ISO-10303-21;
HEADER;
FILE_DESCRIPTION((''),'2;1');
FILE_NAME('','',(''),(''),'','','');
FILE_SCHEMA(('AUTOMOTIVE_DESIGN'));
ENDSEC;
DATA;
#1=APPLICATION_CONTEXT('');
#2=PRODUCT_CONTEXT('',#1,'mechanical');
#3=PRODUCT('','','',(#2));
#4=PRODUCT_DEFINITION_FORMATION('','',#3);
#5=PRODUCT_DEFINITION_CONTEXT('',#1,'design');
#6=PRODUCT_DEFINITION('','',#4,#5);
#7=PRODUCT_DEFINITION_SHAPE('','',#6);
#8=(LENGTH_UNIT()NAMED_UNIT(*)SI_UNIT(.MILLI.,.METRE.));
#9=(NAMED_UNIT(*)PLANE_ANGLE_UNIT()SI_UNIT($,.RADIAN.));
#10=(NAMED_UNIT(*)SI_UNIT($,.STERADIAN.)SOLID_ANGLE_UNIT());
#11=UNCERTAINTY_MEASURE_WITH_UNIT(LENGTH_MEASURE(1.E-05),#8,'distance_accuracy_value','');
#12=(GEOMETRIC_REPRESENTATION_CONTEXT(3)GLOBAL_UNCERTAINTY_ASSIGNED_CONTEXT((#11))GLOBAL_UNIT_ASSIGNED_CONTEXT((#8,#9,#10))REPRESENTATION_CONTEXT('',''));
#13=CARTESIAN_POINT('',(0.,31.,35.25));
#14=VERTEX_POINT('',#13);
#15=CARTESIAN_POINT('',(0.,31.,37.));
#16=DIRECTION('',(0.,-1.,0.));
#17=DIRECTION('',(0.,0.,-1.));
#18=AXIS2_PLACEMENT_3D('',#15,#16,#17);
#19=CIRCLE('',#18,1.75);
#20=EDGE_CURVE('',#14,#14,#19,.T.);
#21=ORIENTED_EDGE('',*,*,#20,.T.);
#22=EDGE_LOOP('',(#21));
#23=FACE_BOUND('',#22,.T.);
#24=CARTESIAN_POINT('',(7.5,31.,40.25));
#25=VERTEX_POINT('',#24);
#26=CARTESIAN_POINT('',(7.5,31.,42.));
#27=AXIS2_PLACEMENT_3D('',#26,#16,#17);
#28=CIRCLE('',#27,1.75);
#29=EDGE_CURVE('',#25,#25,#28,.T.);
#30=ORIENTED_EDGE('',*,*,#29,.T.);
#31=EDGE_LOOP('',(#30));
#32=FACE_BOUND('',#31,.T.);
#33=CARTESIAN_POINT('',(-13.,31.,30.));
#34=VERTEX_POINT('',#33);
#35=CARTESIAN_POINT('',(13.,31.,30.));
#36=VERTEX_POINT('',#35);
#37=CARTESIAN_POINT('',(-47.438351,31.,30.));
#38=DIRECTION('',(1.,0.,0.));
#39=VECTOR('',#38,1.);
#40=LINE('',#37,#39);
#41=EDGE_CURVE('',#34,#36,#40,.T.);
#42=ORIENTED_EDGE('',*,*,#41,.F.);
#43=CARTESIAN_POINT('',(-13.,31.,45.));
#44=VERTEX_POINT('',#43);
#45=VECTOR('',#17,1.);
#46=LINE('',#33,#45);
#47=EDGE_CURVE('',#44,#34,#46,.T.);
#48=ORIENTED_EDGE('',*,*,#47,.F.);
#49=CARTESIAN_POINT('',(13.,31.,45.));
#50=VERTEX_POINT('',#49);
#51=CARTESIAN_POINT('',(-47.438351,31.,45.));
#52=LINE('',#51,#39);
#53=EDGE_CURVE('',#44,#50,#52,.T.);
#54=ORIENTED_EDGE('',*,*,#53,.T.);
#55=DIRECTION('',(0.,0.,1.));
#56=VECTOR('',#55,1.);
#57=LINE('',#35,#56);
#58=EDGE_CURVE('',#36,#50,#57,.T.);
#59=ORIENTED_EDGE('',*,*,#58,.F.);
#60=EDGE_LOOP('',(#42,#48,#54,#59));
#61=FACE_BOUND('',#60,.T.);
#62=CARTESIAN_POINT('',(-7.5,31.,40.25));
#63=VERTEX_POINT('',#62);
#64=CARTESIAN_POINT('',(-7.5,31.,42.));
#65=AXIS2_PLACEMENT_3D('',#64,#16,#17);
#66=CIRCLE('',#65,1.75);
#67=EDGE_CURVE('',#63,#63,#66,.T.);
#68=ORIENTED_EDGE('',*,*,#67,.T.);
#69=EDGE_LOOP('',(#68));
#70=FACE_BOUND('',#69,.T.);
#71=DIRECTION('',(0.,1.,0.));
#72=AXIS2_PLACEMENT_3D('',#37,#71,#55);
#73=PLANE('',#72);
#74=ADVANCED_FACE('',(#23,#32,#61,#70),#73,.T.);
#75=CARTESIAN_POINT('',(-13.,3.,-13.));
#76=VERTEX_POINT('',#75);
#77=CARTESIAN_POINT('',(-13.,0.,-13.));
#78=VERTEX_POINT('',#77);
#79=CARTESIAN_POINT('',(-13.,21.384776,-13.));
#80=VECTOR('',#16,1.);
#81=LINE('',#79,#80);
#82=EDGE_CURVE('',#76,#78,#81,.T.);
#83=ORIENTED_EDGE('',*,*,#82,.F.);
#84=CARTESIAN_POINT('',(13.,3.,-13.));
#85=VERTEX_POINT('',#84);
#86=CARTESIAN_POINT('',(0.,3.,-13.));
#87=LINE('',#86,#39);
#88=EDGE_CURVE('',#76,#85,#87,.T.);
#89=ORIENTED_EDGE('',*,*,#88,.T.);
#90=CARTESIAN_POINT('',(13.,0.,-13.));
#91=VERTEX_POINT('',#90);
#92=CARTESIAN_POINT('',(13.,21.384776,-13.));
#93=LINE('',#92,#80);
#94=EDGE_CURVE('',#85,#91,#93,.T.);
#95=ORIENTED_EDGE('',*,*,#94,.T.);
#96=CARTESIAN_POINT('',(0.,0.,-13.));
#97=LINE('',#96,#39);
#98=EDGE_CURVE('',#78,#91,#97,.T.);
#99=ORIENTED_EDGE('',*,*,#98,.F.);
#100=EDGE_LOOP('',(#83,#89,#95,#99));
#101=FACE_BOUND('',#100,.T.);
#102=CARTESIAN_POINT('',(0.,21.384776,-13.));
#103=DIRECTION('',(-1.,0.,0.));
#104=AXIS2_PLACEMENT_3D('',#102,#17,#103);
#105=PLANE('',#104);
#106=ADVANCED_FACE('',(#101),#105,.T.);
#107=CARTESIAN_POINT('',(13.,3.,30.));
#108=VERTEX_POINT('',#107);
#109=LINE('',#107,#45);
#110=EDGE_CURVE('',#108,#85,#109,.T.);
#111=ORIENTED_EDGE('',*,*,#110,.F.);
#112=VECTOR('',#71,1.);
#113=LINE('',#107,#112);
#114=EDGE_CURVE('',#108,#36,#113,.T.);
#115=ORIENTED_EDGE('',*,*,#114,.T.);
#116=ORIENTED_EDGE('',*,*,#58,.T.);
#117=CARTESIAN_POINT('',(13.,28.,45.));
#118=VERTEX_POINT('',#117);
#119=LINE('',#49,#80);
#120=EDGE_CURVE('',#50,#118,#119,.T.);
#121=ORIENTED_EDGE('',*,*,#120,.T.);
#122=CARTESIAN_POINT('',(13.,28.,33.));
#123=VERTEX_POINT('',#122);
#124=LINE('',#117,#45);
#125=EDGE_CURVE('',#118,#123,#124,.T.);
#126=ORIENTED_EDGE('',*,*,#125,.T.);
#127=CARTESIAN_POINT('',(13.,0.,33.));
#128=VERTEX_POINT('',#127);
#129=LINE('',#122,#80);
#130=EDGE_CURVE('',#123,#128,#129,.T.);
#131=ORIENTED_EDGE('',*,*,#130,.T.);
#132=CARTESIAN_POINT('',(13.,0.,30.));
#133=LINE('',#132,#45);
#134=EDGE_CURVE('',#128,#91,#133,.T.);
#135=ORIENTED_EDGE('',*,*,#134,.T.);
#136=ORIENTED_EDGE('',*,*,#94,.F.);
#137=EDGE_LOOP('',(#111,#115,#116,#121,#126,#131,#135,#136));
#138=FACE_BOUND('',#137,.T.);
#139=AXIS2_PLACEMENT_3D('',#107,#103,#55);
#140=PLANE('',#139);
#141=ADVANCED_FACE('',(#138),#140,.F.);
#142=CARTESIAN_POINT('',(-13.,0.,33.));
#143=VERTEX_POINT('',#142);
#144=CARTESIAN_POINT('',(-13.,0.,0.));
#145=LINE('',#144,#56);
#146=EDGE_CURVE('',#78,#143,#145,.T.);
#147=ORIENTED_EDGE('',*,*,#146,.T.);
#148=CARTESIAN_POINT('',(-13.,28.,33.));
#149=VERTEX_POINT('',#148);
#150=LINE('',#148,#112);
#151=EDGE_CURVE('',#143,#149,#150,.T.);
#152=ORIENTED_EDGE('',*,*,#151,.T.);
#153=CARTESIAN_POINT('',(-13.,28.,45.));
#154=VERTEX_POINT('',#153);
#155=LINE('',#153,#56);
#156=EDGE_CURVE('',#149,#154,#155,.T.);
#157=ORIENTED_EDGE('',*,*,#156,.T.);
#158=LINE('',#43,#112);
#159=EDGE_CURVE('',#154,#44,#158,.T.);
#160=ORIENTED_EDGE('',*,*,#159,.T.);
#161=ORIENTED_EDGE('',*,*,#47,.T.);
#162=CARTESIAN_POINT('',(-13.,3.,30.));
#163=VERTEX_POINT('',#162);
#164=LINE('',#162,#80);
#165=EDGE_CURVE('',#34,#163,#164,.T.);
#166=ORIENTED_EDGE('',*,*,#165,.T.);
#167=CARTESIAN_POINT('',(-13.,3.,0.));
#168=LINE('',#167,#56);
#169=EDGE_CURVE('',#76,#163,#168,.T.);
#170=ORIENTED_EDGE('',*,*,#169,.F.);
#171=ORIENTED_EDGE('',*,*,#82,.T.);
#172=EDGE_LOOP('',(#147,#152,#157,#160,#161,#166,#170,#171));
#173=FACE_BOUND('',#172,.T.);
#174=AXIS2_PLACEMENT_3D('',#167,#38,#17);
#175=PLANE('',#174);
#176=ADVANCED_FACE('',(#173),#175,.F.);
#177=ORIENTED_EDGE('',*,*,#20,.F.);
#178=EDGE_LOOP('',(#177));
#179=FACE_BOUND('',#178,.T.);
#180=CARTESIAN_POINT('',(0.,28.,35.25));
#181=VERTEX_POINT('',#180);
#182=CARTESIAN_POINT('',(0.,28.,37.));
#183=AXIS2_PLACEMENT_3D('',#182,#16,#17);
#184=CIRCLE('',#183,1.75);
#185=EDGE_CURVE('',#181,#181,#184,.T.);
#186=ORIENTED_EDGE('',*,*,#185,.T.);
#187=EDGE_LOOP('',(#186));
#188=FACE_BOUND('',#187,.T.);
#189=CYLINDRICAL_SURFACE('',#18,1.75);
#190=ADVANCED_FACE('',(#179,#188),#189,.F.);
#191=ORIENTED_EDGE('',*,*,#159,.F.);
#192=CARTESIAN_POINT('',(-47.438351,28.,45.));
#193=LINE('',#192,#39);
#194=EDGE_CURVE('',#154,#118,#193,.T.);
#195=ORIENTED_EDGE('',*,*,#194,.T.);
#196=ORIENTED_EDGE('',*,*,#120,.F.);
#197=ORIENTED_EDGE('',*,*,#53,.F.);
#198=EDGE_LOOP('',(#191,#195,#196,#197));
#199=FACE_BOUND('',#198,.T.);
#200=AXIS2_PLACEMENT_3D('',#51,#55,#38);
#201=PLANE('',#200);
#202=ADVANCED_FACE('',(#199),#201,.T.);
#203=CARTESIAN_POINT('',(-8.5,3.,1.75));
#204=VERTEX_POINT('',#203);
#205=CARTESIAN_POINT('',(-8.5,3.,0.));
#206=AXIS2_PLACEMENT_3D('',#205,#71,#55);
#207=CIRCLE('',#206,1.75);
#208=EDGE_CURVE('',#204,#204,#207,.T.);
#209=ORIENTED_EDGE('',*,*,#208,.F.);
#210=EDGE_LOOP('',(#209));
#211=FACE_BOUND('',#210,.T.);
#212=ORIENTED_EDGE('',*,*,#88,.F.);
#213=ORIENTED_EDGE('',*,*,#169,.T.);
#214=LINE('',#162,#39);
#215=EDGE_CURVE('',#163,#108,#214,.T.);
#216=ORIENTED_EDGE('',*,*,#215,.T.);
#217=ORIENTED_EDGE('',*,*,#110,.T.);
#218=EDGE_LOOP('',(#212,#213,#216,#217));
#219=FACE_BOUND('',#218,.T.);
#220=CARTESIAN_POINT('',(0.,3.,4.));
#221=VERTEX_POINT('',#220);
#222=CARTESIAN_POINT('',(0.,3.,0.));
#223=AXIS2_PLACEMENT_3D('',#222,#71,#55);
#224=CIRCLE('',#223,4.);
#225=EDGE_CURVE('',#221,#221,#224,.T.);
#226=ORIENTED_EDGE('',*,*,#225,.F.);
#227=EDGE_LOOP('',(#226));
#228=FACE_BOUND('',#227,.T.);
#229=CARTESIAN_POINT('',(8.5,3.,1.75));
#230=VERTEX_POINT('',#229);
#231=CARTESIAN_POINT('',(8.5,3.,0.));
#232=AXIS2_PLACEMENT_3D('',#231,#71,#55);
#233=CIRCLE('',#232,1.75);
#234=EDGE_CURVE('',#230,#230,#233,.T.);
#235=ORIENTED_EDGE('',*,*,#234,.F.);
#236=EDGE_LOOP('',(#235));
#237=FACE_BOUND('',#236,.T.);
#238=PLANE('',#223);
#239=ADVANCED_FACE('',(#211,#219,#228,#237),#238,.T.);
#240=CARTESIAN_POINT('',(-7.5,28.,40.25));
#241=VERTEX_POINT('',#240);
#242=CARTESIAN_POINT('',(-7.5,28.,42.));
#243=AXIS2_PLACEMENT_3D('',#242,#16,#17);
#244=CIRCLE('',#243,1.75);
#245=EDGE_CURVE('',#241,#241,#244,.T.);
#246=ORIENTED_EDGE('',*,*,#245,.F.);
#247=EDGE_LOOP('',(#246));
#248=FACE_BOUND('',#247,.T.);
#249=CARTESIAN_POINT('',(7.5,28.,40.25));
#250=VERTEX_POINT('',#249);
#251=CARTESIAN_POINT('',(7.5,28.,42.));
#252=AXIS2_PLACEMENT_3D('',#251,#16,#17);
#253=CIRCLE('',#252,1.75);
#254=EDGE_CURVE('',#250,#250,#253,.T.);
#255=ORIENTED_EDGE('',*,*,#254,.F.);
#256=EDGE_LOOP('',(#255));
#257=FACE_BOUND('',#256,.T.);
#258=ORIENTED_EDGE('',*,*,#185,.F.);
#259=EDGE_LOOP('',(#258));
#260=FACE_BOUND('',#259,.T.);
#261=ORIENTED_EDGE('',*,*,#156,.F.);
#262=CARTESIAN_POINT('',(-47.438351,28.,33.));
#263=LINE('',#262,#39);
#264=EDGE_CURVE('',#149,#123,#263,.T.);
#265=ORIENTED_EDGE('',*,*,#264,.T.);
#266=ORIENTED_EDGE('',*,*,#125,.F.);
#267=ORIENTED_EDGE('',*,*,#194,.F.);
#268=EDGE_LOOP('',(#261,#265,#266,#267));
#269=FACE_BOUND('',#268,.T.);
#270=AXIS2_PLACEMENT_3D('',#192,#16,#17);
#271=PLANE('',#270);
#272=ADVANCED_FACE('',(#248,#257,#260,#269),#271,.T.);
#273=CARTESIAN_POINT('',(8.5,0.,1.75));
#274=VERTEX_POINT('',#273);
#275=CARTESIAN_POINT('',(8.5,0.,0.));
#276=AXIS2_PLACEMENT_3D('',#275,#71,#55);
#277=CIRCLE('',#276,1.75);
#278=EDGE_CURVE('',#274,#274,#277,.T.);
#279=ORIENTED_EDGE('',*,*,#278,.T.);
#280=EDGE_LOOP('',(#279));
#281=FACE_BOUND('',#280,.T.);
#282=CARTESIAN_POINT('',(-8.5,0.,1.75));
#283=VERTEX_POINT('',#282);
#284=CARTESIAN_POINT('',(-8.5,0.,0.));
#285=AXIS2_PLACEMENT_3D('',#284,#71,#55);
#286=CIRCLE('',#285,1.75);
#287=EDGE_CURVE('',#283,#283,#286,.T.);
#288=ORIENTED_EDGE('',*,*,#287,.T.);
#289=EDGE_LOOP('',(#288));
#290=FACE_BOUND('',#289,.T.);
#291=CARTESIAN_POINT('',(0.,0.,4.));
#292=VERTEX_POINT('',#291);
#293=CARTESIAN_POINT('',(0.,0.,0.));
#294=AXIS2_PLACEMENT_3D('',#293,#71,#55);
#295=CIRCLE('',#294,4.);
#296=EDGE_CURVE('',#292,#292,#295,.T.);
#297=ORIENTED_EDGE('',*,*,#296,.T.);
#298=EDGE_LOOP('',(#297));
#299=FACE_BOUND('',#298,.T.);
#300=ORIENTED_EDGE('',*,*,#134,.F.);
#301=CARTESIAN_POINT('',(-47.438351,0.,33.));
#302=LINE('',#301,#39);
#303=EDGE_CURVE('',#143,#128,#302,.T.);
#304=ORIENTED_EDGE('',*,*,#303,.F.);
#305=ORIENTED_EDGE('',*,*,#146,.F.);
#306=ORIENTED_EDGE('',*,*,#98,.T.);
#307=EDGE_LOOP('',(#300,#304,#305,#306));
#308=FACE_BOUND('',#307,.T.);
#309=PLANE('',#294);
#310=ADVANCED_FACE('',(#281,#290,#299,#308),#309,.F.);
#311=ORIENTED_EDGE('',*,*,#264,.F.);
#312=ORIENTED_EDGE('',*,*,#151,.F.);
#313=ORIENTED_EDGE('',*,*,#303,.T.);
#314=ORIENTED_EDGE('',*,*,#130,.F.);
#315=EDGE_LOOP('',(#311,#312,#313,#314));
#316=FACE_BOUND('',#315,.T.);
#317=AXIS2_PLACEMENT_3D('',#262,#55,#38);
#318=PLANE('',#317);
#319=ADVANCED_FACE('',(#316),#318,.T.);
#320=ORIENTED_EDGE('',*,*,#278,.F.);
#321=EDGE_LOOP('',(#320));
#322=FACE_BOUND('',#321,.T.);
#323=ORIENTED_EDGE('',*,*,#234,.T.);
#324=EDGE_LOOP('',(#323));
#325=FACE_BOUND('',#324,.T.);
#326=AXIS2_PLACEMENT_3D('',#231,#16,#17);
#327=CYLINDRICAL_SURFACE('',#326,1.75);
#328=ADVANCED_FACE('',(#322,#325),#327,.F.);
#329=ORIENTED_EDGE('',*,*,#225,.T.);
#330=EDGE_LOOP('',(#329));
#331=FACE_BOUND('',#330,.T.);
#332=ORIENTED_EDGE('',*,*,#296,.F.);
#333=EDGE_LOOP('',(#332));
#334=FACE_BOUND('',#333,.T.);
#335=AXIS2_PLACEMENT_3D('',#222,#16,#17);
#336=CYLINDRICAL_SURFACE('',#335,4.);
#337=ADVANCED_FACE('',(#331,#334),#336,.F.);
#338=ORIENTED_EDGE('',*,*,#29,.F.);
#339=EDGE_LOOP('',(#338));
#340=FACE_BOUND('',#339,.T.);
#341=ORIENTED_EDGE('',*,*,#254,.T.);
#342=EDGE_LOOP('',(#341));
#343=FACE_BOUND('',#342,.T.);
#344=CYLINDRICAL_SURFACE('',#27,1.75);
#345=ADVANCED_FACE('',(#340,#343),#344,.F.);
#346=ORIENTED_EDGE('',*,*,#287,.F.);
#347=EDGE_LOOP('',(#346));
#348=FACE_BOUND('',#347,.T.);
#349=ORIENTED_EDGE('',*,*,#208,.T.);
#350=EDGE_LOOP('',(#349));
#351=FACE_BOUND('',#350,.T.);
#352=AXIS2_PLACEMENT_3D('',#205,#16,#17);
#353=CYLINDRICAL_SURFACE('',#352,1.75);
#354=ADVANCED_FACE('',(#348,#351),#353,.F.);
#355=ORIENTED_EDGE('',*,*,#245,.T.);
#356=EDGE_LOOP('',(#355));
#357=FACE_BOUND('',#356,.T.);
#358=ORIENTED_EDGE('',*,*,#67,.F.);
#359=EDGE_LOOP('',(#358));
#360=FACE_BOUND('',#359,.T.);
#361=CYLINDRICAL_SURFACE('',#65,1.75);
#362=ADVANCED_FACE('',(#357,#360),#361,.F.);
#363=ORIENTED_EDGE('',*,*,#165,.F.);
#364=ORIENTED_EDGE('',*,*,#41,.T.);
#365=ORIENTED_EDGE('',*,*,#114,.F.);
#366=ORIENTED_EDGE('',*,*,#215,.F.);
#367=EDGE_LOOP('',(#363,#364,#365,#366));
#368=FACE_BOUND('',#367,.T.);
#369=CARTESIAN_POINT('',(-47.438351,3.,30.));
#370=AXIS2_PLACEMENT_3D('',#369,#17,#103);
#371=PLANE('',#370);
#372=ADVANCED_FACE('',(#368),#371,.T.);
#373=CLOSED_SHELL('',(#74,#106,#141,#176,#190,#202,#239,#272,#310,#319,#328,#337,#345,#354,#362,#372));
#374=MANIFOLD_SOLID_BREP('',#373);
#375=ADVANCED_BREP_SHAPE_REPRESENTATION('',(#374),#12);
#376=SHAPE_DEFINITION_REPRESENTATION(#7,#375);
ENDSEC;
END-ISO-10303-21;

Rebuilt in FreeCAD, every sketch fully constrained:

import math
import FreeCAD as App
import Part
import Sketcher
from FreeCAD import Vector
Q = App.Units.Quantity


def add_polygon(sketch, points):
    """Adds a closed chain of lines whose ends are joined by coincident constraints."""
    first, n = sketch.GeometryCount, len(points)
    for a, b in zip(points, points[1:] + points[:1]):
        sketch.addGeometry(Part.LineSegment(App.Vector(*a, 0), App.Vector(*b, 0)), False)
    for i in range(n):
        sketch.addConstraint(Sketcher.Constraint("Coincident", first + i, 2, first + (i + 1) % n, 1))

doc = App.newDocument("Part")
body = doc.addObject("PartDesign::Body", "Body")

sketch1 = body.newObject("Sketcher::SketchObject", "Sketch")
sketch1.AttachmentSupport = (doc.getObject("XZ_Plane"), [""])
sketch1.MapMode = "FlatFace"
sketch1.addGeometry([
    Part.LineSegment(Vector(-13, 0, 0), Vector(-13, 30, 0)),
    Part.LineSegment(Vector(-13, 30, 0), Vector(13, 30, 0)),
    Part.LineSegment(Vector(13, 30, 0), Vector(13, 0, 0)),
    Part.ArcOfCircle(Part.Circle(Vector(0, 0, 0), Vector(0, 0, 1), 13), math.radians(180), math.radians(360)),
    Part.Circle(Vector(-8.5, 0, 0), Vector(0, 0, 1), 1.8),
    Part.Circle(Vector(0, 0, 0), Vector(0, 0, 1), 4),
    Part.Circle(Vector(8.5, 0, 0), Vector(0, 0, 1), 1.8),
], False)
sketch1.addConstraint([
    Sketcher.Constraint("Coincident", 0, 2, 1, 1),
    Sketcher.Constraint("Coincident", 1, 2, 2, 1),
    Sketcher.Constraint("Tangent", 2, 2, 3, 2),
    Sketcher.Constraint("Tangent", 3, 1, 0, 1),
    Sketcher.Constraint("Vertical", 0),
    Sketcher.Constraint("Horizontal", 1),
    Sketcher.Constraint("Vertical", 2),
    Sketcher.Constraint("Coincident", 3, 3, -1, 1),
    Sketcher.Constraint("Coincident", 5, 3, -1, 1),
    Sketcher.Constraint("Equal", 4, 6),
    Sketcher.Constraint("Symmetric", 4, 3, 6, 3, -1, 1),
    Sketcher.Constraint("PointOnObject", 4, 3, -1),
    Sketcher.Constraint("Diameter", 5, Q("8 mm")),
    Sketcher.Constraint("Radius", 3, Q("13 mm")),
    Sketcher.Constraint("Diameter", 4, Q("3.5 mm")),
    Sketcher.Constraint("DistanceY", 0, 1, 0, 2, Q("30 mm")),
    Sketcher.Constraint("DistanceX", 4, 3, 6, 3, Q("17 mm")),
])
pad1 = body.newObject("PartDesign::Pad", "Pad")
pad1.Profile = sketch1
pad1.Length = 3
pad1.Reversed = True

sketch2 = body.newObject("Sketcher::SketchObject", "Sketch001")
sketch2.AttachmentSupport = (doc.getObject("YZ_Plane"), [""])
sketch2.MapMode = "FlatFace"
sketch2.AttachmentOffset = App.Placement(Vector(0, 0, 13), App.Rotation())
add_polygon(sketch2, [(31, 30), (31, 45), (28, 45), (28, 33), (0, 33), (0, 30)])
sketch2.addConstraint([
    Sketcher.Constraint("Vertical", 0),
    Sketcher.Constraint("Horizontal", 1),
    Sketcher.Constraint("Vertical", 2),
    Sketcher.Constraint("Horizontal", 3),
    Sketcher.Constraint("Vertical", 4),
    Sketcher.Constraint("Horizontal", 5),
    Sketcher.Constraint("PointOnObject", 3, 2, -2),
    Sketcher.Constraint("Equal", 1, 4),
    Sketcher.Constraint("DistanceX", 1, 2, 1, 1, Q("3 mm")),
    Sketcher.Constraint("DistanceX", 3, 2, 3, 1, Q("28 mm")),
    Sketcher.Constraint("DistanceY", 0, 1, 0, 2, Q("15 mm")),
    Sketcher.Constraint("DistanceY", -1, 1, 0, 2, Q("45 mm")),
])
pad2 = body.newObject("PartDesign::Pad", "Pad001")
pad2.Profile = sketch2
pad2.Length = 26
pad2.Reversed = True

sketch3 = body.newObject("Sketcher::SketchObject", "Sketch002")
sketch3.AttachmentSupport = (doc.getObject("XZ_Plane"), [""])
sketch3.MapMode = "FlatFace"
sketch3.AttachmentOffset = App.Placement(Vector(0, 0, -28), App.Rotation())
sketch3.addGeometry([
    Part.ArcOfCircle(Part.Circle(Vector(7.5, 42, 0), Vector(0, 0, 1), 1.8), math.radians(0), math.radians(180)),
    Part.ArcOfCircle(Part.Circle(Vector(7.5, 42, 0), Vector(0, 0, 1), 1.8), math.radians(180), math.radians(270)),
    Part.ArcOfCircle(Part.Circle(Vector(7.5, 42, 0), Vector(0, 0, 1), 1.8), math.radians(-90), math.radians(0)),
    Part.Circle(Vector(0, 37, 0), Vector(0, 0, 1), 1.8),
    Part.ArcOfCircle(Part.Circle(Vector(-7.5, 42, 0), Vector(0, 0, 1), 1.8), math.radians(0), math.radians(270)),
    Part.ArcOfCircle(Part.Circle(Vector(-7.5, 42, 0), Vector(0, 0, 1), 1.8), math.radians(-90), math.radians(0)),
], False)
sketch3.addConstraint([
    Sketcher.Constraint("Tangent", 0, 2, 1, 1),
    Sketcher.Constraint("Tangent", 1, 2, 2, 1),
    Sketcher.Constraint("Tangent", 2, 2, 0, 1),
    Sketcher.Constraint("Tangent", 4, 1, 5, 2),
    Sketcher.Constraint("Coincident", 5, 1, 4, 2),
    Sketcher.Constraint("Equal", 2, 3),
    Sketcher.Constraint("Equal", 3, 4),
    Sketcher.Constraint("Symmetric", 0, 3, 4, 3, -2),
    Sketcher.Constraint("PointOnObject", 3, 3, -2),
    Sketcher.Constraint("Horizontal", 5, 3, 0, 2),
    Sketcher.Constraint("Horizontal", 0, 2, 2, 2),
    Sketcher.Constraint("Horizontal", 2, 2, 4, 1),
    Sketcher.Constraint("Vertical", 2, 3, 1, 2),
    Sketcher.Constraint("Vertical", 4, 3, 5, 1),
    Sketcher.Constraint("Diameter", 3, Q("3.5 mm")),
    Sketcher.Constraint("DistanceY", -1, 1, 0, 3, Q("42 mm")),
    Sketcher.Constraint("DistanceY", -1, 1, 3, 3, Q("37 mm")),
    Sketcher.Constraint("DistanceX", 4, 3, 0, 3, Q("15 mm")),
])
pocket1 = body.newObject("PartDesign::Pocket", "Pocket")
pocket1.Profile = sketch3
pocket1.Type = "ThroughAll"

sketch4 = body.newObject("Sketcher::SketchObject", "Sketch003")
sketch4.AttachmentSupport = (doc.getObject("XZ_Plane"), [""])
sketch4.MapMode = "FlatFace"
sketch4.addGeometry([
    Part.ArcOfCircle(Part.Circle(Vector(0, 0, 0), Vector(0, 0, 1), 13), math.radians(180), math.radians(270)),
    Part.LineSegment(Vector(-13, 0, 0), Vector(-13, -13, 0)),
    Part.LineSegment(Vector(-13, -13, 0), Vector(0, -13, 0)),
    Part.ArcOfCircle(Part.Circle(Vector(0, 0, 0), Vector(0, 0, 1), 13), math.radians(-90), math.radians(0)),
    Part.LineSegment(Vector(0, -13, 0), Vector(13, -13, 0)),
    Part.LineSegment(Vector(13, -13, 0), Vector(13, 0, 0)),
], False)
sketch4.addConstraint([
    Sketcher.Constraint("Tangent", 0, 1, 1, 1),
    Sketcher.Constraint("Coincident", 1, 2, 2, 1),
    Sketcher.Constraint("Tangent", 2, 2, 0, 2),
    Sketcher.Constraint("Tangent", 3, 1, 4, 1),
    Sketcher.Constraint("Coincident", 4, 2, 5, 1),
    Sketcher.Constraint("Tangent", 5, 2, 3, 2),
    Sketcher.Constraint("Vertical", 1),
    Sketcher.Constraint("Horizontal", 2),
    Sketcher.Constraint("Horizontal", 4),
    Sketcher.Constraint("Vertical", 5),
    Sketcher.Constraint("Coincident", 0, 3, -1, 1),
    Sketcher.Constraint("Coincident", 3, 3, -1, 1),
    Sketcher.Constraint("Equal", 0, 3),
    Sketcher.Constraint("Radius", 0, Q("13 mm")),
])
pad3 = body.newObject("PartDesign::Pad", "Pad002")
pad3.Profile = sketch4
pad3.Length = 3
pad3.Reversed = True

doc.recompute()
